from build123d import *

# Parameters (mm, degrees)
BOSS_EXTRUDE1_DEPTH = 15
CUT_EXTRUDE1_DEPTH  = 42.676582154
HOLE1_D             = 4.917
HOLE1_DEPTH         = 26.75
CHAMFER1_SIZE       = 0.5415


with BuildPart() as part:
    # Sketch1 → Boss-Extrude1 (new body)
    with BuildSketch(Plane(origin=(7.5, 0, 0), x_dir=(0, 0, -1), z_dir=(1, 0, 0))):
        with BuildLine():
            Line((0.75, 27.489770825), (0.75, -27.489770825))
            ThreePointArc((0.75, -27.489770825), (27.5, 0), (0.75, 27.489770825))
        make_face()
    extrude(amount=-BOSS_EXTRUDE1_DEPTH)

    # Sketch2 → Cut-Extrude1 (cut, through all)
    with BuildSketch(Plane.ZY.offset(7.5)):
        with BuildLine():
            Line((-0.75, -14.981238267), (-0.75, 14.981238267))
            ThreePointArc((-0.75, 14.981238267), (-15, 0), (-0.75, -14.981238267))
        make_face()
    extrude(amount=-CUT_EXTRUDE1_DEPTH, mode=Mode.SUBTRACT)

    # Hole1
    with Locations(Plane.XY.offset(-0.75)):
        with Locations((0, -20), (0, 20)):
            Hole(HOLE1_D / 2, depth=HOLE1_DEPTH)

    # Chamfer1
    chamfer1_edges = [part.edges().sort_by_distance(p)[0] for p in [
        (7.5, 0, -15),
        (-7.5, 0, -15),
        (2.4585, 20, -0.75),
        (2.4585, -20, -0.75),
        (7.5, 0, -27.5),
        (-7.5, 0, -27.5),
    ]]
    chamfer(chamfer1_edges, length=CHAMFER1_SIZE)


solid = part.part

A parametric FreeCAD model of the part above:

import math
import FreeCAD as App
import Part
import Sketcher

V = App.Vector
Q = App.Units.Quantity


def edges_at(feature, points):
    """Names of the edges that pass closest to the given points."""
    edges = feature.Shape.Edges
    near = lambda p: min(range(len(edges)), key=lambda i: edges[i].distToShape(Part.Vertex(*p))[0])
    return sorted({f"Edge{near(p) + 1}" for p in points})

doc = App.newDocument("Part")
body = doc.addObject("PartDesign::Body", "Body")

sketch1 = body.newObject("Sketcher::SketchObject", "Sketch")
sketch1.AttachmentSupport = (doc.getObject("YZ_Plane"), [""])
sketch1.MapMode = "FlatFace"
sketch1.AttachmentOffset = App.Placement(V(0, 0, 7.5), App.Rotation())
sketch1.addGeometry([
    Part.LineSegment(V(27.489771, -0.75, 0), V(-27.489771, -0.75, 0)),
    Part.ArcOfCircle(Part.Circle(V(0, 0, 0), V(0, 0, 1), 27.5), math.radians(-178.437194), math.radians(-1.562806)),
], False)
sketch1.addConstraint([
    Sketcher.Constraint("Coincident", 0, 1, 1, 2),
    Sketcher.Constraint("Coincident", 1, 1, 0, 2),
    Sketcher.Constraint("Horizontal", 0),
    Sketcher.Constraint("Coincident", 1, 3, -1, 1),
    Sketcher.Constraint("Radius", 1, Q("27.5 mm")),
    Sketcher.Constraint("DistanceY", 0, 1, -1, 1, Q("0.75 mm")),
])
pad1 = body.newObject("PartDesign::Pad", "Pad")
pad1.Profile = sketch1
pad1.Length = 15
pad1.Reversed = True

sketch2 = body.newObject("Sketcher::SketchObject", "Sketch001")
sketch2.AttachmentSupport = (doc.getObject("YZ_Plane"), [""])
sketch2.MapMode = "FlatFace"
sketch2.AttachmentOffset = App.Placement(V(0, 0, -7.5), App.Rotation())
sketch2.addGeometry([
    Part.LineSegment(V(-14.981238, -0.75, 0), V(14.981238, -0.75, 0)),
    Part.ArcOfCircle(Part.Circle(V(0, 0, 0), V(0, 0, 1), 15), math.radians(-177.134016), math.radians(-2.865984)),
], False)
sketch2.addConstraint([
    Sketcher.Constraint("Coincident", 0, 1, 1, 1),
    Sketcher.Constraint("Coincident", 1, 2, 0, 2),
    Sketcher.Constraint("Horizontal", 0),
    Sketcher.Constraint("Coincident", 1, 3, -1, 1),
    Sketcher.Constraint("Radius", 1, Q("15 mm")),
    Sketcher.Constraint("DistanceY", 0, 1, -1, 1, Q("0.75 mm")),
])
pocket1 = body.newObject("PartDesign::Pocket", "Pocket")
pocket1.Profile = sketch2
pocket1.Type = "ThroughAll"
pocket1.Reversed = True

sketch3 = body.newObject("Sketcher::SketchObject", "Sketch002")
sketch3.AttachmentSupport = (doc.getObject("XY_Plane"), [""])
sketch3.MapMode = "FlatFace"
sketch3.AttachmentOffset = App.Placement(V(0, 0, -0.75), App.Rotation())
sketch3.addGeometry([
    Part.Circle(V(0, -20, 0), V(0, 0, 1), 2.4585),
    Part.Circle(V(0, 20, 0), V(0, 0, 1), 2.4585),
], False)
sketch3.addConstraint([
    Sketcher.Constraint("Equal", 0, 1),
    Sketcher.Constraint("Symmetric", 0, 3, 1, 3, -1, 1),
    Sketcher.Constraint("PointOnObject", 0, 3, -2),
    Sketcher.Constraint("Diameter", 0, Q("4.917 mm")),
    Sketcher.Constraint("DistanceY", 0, 3, -1, 1, Q("20 mm")),
])
doc.recompute()
hole = body.newObject("PartDesign::Hole", "Hole")
hole.Profile = sketch3
hole.ThreadType = "None"
hole.Diameter = 4.917
hole.DepthType = "Dimension"
hole.Depth = 26.75
hole.DrillPoint = "Flat"
doc.recompute()

chamfer = body.newObject("PartDesign::Chamfer", "Chamfer")
chamfer.Base = (hole, edges_at(hole, [
    (7.5, 0, -15),
    (-7.5, 0, -15),
    (2.458, 20, -0.75),
    (2.458, -20, -0.75),
    (7.5, 0, -27.5),
    (-7.5, 0, -27.5),
]))
chamfer.Size = 0.5415

doc.recompute()
